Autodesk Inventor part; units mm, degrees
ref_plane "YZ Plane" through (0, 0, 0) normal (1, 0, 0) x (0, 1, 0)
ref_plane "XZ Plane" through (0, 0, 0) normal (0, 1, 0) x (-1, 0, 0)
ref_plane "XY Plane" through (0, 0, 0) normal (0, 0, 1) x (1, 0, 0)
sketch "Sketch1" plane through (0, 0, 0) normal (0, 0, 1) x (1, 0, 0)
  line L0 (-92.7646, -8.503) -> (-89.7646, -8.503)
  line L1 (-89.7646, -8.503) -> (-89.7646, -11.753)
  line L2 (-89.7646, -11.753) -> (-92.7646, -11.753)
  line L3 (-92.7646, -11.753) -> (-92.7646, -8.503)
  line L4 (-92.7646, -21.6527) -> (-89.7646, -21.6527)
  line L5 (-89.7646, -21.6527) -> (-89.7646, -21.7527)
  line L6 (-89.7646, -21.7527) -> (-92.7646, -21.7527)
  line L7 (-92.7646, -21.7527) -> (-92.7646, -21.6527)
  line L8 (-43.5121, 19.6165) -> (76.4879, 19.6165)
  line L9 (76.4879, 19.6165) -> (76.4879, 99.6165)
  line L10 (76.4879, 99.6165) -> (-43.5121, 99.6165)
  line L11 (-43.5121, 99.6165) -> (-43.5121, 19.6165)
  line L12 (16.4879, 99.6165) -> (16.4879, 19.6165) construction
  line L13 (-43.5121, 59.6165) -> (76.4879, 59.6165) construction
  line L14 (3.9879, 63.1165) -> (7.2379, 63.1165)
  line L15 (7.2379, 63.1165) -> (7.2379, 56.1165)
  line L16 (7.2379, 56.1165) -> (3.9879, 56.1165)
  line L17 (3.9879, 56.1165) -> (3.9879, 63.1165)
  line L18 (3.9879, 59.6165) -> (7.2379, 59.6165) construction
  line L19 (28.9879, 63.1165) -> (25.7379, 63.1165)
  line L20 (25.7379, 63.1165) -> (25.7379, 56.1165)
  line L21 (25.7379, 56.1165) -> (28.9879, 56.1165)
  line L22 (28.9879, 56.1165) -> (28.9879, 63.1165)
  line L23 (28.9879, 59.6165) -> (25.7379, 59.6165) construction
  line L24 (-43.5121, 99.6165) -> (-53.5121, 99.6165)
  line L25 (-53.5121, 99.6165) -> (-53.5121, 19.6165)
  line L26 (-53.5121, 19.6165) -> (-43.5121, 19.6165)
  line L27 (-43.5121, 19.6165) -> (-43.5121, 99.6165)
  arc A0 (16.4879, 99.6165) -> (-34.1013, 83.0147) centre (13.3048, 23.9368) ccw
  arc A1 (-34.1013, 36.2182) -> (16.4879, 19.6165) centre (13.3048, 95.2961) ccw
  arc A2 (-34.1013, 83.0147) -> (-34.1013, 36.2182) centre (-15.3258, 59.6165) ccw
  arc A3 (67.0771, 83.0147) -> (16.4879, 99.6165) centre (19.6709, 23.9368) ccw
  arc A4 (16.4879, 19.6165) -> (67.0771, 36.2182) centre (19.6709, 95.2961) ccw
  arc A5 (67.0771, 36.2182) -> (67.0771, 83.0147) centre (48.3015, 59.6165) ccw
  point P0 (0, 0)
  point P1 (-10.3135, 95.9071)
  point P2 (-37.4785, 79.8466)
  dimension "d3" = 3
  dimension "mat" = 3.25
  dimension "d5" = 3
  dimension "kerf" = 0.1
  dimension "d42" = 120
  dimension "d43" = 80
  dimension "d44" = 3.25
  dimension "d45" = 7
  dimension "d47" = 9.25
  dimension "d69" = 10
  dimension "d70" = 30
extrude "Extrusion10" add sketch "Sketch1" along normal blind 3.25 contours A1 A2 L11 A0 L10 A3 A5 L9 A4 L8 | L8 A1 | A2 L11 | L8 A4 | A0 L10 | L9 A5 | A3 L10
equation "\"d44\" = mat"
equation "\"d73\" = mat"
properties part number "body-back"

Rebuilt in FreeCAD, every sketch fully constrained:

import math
import FreeCAD as App
import Part
import Sketcher

V = App.Vector


def add_polygon(sketch, points):
    """Adds a closed chain of lines whose ends are joined by coincident constraints."""
    first, n = sketch.GeometryCount, len(points)
    for a, b in zip(points, points[1:] + points[:1]):
        sketch.addGeometry(Part.LineSegment(App.Vector(*a, 0), App.Vector(*b, 0)), False)
    for i in range(n):
        sketch.addConstraint(Sketcher.Constraint("Coincident", first + i, 2, first + (i + 1) % n, 1))

doc = App.newDocument("Part")
body = doc.addObject("PartDesign::Body", "Body")

sketch1 = doc.addObject("Sketcher::SketchObject", "Sketch")
body.addObject(sketch1)
sketch1.AttachmentSupport = (doc.XY_Plane, [""])
sketch1.MapMode = "FlatFace"
sketch1.addGeometry(Part.ArcOfCircle(Part.Circle(V(13.3, 95.3, 0), V(0, 0, 1), 75.7), math.radians(-129), math.radians(-88)), False)
sketch1.addGeometry(Part.ArcOfCircle(Part.Circle(V(19.7, 95.3, 0), V(0, 0, 1), 75.7), math.radians(-92), math.radians(-51)), False)
sketch1.addGeometry(Part.ArcOfCircle(Part.Circle(V(48.3, 59.6, 0), V(0, 0, 1), 30), math.radians(-51), math.radians(51)), False)
sketch1.addGeometry(Part.ArcOfCircle(Part.Circle(V(19.7, 23.9, 0), V(0, 0, 1), 75.7), math.radians(51), math.radians(92)), False)
sketch1.addGeometry(Part.ArcOfCircle(Part.Circle(V(13.3, 23.9, 0), V(0, 0, 1), 75.7), math.radians(88), math.radians(129)), False)
sketch1.addGeometry(Part.ArcOfCircle(Part.Circle(V(-15.3, 59.6, 0), V(0, 0, 1), 30), math.radians(129), math.radians(231)), False)
add_polygon(sketch1, [(4, 56.1), (4, 63.1), (7.2, 63.1), (7.2, 56.1)])
add_polygon(sketch1, [(25.7, 63.1), (29, 63.1), (29, 56.1), (25.7, 56.1)])
sketch1.addConstraint([
    Sketcher.Constraint("Coincident", 0, 2, 1, 1),
    Sketcher.Constraint("Tangent", 1, 2, 2, 1),
    Sketcher.Constraint("Tangent", 2, 2, 3, 1),
    Sketcher.Constraint("Coincident", 3, 2, 4, 1),
    Sketcher.Constraint("Tangent", 4, 2, 5, 1),
    Sketcher.Constraint("Tangent", 5, 2, 0, 1),
    Sketcher.Constraint("Vertical", 6),
    Sketcher.Constraint("Horizontal", 7),
    Sketcher.Constraint("Vertical", 8),
    Sketcher.Constraint("Horizontal", 9),
    Sketcher.Constraint("Horizontal", 10),
    Sketcher.Constraint("Vertical", 11),
    Sketcher.Constraint("Horizontal", 12),
    Sketcher.Constraint("Vertical", 13),
    Sketcher.Constraint("Equal", 0, 1),
    Sketcher.Constraint("Equal", 1, 3),
    Sketcher.Constraint("Equal", 3, 4),
    Sketcher.Constraint("Equal", 2, 5),
    Sketcher.Constraint("Horizontal", 0, 3, 1, 3),
    Sketcher.Constraint("Horizontal", 3, 3, 4, 3),
    Sketcher.Constraint("Horizontal", 2, 3, 5, 3),
    Sketcher.Constraint("Horizontal", 7, 2, 10, 2),
    Sketcher.Constraint("Horizontal", 9, 2, 11, 2),
    Sketcher.Constraint("Vertical", 1, 3, 3, 3),
    Sketcher.Constraint("Equal", 9, 10),
    Sketcher.Constraint("Radius", 2, 30.0),
    Sketcher.Constraint("DistanceY", 6, 1, 6, 2, 7.0),
    Sketcher.Constraint("DistanceX", 7, 1, 7, 2, 3.25),
    Sketcher.Constraint("DistanceX", 7, 2, 3, 2, 9.25),
    Sketcher.Constraint("DistanceY", 0, 2, 2, 3, 40.0),
    Sketcher.Constraint("DistanceX", 6, 2, 10, 2, 25.0),
    Sketcher.Constraint("Radius", 0, 75.7465),
    Sketcher.Constraint("DistanceY", 5, 3, 6, 2, 3.5),
    Sketcher.Constraint("DistanceY", -1, 1, 0, 3, 95.296),
    Sketcher.Constraint("DistanceX", -1, 1, 1, 3, 19.671),
    Sketcher.Constraint("DistanceX", -1, 1, 0, 2, 16.488),
])
pad1 = doc.addObject("PartDesign::Pad", "Pad")
body.addObject(pad1)
pad1.Profile = sketch1
pad1.Length = 3.25

doc.recompute()
